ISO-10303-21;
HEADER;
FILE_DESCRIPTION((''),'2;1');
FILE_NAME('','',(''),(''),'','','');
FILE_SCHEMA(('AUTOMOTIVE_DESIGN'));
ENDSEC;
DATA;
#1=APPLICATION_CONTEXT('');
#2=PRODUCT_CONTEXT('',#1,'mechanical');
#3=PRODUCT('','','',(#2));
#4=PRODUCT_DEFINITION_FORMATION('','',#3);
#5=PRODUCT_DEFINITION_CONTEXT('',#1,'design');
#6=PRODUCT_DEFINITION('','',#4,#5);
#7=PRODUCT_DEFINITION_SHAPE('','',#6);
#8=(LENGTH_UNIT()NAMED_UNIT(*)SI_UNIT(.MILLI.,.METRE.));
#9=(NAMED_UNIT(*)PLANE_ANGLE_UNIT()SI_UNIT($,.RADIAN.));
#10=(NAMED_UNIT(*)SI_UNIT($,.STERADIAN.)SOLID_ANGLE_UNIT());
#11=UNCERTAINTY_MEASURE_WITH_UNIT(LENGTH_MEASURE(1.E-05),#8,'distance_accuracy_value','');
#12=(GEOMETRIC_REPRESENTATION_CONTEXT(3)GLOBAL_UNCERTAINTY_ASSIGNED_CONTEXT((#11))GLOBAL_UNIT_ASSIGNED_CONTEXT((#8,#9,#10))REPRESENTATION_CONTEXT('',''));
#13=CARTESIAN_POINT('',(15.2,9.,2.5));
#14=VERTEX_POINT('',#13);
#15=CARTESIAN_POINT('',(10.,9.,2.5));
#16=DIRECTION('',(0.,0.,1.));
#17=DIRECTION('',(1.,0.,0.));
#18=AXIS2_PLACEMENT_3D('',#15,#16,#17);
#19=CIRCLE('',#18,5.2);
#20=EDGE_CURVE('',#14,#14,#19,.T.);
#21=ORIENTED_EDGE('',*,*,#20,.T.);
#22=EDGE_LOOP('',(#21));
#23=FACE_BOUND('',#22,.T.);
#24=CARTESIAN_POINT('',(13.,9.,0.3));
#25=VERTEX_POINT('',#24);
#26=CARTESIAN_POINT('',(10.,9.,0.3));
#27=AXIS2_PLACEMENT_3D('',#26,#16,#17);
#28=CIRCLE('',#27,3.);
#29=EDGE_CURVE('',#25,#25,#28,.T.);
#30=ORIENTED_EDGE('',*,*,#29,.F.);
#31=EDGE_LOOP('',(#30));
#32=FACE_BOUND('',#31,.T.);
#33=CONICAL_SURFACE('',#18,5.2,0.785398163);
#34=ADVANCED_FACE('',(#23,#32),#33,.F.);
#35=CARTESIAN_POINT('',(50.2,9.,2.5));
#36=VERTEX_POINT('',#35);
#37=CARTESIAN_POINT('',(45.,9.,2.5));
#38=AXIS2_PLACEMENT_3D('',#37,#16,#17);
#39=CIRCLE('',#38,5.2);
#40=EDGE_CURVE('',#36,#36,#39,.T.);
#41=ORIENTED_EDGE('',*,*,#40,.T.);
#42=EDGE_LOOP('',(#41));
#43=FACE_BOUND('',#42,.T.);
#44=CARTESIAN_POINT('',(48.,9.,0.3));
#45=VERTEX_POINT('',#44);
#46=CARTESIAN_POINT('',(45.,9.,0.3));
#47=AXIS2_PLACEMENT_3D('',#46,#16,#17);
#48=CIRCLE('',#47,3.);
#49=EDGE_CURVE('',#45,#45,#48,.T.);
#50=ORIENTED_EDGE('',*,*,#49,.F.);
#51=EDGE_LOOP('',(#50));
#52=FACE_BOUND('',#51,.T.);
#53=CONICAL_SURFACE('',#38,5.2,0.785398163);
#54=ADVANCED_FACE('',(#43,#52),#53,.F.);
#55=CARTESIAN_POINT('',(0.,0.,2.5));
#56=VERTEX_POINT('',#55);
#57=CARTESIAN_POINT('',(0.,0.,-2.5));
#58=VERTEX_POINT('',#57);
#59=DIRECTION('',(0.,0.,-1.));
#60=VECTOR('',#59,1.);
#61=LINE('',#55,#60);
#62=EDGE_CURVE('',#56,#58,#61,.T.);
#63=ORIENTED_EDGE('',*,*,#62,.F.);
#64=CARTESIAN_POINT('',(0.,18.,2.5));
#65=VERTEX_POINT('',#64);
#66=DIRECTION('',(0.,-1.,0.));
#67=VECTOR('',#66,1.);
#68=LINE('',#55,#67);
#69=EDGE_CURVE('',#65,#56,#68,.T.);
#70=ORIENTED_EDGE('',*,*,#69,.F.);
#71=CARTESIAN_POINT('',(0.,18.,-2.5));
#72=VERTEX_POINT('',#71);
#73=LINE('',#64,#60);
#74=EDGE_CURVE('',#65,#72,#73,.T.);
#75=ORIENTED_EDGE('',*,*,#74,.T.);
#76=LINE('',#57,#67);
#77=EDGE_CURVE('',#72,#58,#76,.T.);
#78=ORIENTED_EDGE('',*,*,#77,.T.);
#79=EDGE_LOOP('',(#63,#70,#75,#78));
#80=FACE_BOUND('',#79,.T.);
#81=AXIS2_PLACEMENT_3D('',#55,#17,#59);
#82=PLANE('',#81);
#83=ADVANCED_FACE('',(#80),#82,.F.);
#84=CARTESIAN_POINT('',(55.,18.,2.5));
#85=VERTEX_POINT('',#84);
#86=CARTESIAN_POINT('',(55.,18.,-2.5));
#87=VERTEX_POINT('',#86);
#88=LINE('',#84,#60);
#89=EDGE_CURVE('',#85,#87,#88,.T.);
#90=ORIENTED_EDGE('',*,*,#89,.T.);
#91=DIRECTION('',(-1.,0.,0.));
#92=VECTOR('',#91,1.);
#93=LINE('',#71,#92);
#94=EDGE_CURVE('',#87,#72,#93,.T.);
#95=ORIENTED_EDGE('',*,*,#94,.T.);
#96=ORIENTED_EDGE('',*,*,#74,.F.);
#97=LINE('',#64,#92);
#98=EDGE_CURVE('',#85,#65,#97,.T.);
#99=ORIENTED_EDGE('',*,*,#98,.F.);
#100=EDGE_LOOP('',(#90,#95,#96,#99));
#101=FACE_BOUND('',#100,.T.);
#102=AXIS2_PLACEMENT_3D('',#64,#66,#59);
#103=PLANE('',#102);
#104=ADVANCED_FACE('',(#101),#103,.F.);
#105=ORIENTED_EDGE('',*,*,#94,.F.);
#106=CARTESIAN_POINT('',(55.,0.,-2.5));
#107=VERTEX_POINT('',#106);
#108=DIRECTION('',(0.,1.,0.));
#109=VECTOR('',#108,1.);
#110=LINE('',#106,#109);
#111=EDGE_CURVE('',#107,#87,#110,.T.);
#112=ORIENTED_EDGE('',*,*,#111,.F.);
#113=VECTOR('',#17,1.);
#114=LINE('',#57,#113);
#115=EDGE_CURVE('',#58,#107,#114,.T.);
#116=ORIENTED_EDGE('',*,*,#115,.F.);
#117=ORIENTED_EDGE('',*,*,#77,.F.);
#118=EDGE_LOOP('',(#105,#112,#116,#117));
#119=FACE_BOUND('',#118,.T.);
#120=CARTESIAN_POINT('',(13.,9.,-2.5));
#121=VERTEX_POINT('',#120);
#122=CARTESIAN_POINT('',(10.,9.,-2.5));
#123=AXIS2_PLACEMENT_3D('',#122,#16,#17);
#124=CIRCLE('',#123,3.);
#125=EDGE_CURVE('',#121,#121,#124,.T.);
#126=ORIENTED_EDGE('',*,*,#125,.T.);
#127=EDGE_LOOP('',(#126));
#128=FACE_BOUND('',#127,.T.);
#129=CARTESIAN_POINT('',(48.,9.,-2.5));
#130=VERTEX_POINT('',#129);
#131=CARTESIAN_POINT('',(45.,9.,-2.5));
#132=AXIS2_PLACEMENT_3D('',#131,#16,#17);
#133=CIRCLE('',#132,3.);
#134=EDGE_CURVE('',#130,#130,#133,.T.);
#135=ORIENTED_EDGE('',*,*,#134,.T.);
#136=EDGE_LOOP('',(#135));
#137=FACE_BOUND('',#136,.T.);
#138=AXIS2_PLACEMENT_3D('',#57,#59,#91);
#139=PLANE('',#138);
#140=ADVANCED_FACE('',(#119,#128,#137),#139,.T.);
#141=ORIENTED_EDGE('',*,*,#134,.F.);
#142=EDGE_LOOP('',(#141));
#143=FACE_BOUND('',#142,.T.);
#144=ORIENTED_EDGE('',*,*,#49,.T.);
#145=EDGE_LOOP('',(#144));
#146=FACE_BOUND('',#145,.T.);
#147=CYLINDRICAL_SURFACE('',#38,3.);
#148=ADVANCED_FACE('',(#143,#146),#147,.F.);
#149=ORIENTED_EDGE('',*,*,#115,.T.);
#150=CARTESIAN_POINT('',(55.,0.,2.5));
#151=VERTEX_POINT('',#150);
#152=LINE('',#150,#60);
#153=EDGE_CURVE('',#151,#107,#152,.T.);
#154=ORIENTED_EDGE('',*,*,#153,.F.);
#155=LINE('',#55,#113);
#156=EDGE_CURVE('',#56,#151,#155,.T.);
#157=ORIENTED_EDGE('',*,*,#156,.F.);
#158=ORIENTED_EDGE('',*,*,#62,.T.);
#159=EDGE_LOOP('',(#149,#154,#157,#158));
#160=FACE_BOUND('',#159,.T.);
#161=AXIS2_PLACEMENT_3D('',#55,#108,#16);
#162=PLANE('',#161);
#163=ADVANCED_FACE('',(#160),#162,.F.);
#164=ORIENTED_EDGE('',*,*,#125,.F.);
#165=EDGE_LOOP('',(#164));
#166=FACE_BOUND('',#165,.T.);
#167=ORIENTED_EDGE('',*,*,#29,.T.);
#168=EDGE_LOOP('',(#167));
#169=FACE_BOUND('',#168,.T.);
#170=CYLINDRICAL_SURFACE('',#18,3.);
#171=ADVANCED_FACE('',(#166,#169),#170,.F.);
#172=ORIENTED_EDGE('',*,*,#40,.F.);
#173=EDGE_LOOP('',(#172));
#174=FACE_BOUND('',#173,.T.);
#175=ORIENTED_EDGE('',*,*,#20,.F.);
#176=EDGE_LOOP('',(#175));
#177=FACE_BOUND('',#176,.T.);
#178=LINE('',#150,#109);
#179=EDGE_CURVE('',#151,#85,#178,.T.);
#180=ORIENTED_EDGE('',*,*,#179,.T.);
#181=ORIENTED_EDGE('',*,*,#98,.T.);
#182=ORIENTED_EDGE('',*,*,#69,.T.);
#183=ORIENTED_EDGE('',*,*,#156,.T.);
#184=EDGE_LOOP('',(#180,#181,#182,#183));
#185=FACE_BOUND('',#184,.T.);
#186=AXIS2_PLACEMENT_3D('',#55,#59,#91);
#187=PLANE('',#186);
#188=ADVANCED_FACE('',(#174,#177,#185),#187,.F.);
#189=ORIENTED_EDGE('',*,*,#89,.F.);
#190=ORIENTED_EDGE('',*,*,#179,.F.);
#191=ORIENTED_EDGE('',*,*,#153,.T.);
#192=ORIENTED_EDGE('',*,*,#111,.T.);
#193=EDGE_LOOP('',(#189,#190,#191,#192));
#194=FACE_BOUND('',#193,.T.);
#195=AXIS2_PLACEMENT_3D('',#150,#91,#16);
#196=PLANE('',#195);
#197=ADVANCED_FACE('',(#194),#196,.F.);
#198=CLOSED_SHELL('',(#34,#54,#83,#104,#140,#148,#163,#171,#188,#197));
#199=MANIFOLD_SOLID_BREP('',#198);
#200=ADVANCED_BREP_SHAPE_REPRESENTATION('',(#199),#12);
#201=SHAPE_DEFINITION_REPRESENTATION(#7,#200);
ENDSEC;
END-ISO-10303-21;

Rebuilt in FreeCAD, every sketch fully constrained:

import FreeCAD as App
import Part
import Sketcher
from FreeCAD import Vector
Q = App.Units.Quantity

doc = App.newDocument("Part")
body = doc.addObject("PartDesign::Body", "Body")

# Sketch on XY plane
sketch1 = body.newObject("Sketcher::SketchObject", "Sketch")
sketch1.AttachmentSupport = (doc.getObject("XY_Plane"), [""])
sketch1.MapMode = "FlatFace"
sketch1.addGeometry(Part.LineSegment(Vector(0, 18, 0), Vector(0, 0, 0)), False)
sketch1.addGeometry(Part.LineSegment(Vector(0, 0, 0), Vector(55, 0, 0)), False)
sketch1.addGeometry(Part.LineSegment(Vector(55, 0, 0), Vector(55, 18, 0)), False)
sketch1.addGeometry(Part.LineSegment(Vector(55, 18, 0), Vector(0, 18, 0)), False)
sketch1.addConstraint(Sketcher.Constraint("Coincident", 0, 2, 1, 1))
sketch1.addConstraint(Sketcher.Constraint("Coincident", 1, 2, 2, 1))
sketch1.addConstraint(Sketcher.Constraint("Coincident", 2, 2, 3, 1))
sketch1.addConstraint(Sketcher.Constraint("Coincident", 3, 2, 0, 1))
sketch1.addConstraint(Sketcher.Constraint("Vertical", 0))
sketch1.addConstraint(Sketcher.Constraint("Horizontal", 1))
sketch1.addConstraint(Sketcher.Constraint("Vertical", 2))
sketch1.addConstraint(Sketcher.Constraint("Horizontal", 3))
sketch1.addConstraint(Sketcher.Constraint("Coincident", 0, 2, -1, 1))
sketch1.addConstraint(Sketcher.Constraint("DistanceX", 1, 1, 1, 2, Q("55 mm")))
sketch1.addConstraint(Sketcher.Constraint("DistanceY", 0, 2, 0, 1, Q("18 mm")))
pad1 = body.newObject("PartDesign::Pad", "Pad")
pad1.Profile = sketch1
pad1.Length = 5
pad1.Midplane = True

# Sketch on YZ plane
sketch2 = body.newObject("Sketcher::SketchObject", "Sketch001")
sketch2.AttachmentSupport = (doc.getObject("YZ_Plane"), [""])
sketch2.MapMode = "FlatFace"
sketch2.AttachmentOffset = App.Placement(Vector(0, 0, 10), App.Rotation())
sketch2.addGeometry(Part.LineSegment(Vector(9, -2.5, 0), Vector(9, 2.5, 0)), False)
sketch2.addGeometry(Part.LineSegment(Vector(9, 2.5, 0), Vector(3.8, 2.5, 0)), False)
sketch2.addGeometry(Part.LineSegment(Vector(3.8, 2.5, 0), Vector(6, 0.3, 0)), False)
sketch2.addGeometry(Part.LineSegment(Vector(6, 0.3, 0), Vector(6, -2.5, 0)), False)
sketch2.addGeometry(Part.LineSegment(Vector(6, -2.5, 0), Vector(9, -2.5, 0)), False)
sketch2.addGeometry(Part.LineSegment(Vector(9, 2.5, 0), Vector(9, -2.5, 0)), True)  # axis
sketch2.addConstraint(Sketcher.Constraint("Coincident", 0, 2, 1, 1))
sketch2.addConstraint(Sketcher.Constraint("Coincident", 1, 2, 2, 1))
sketch2.addConstraint(Sketcher.Constraint("Coincident", 2, 2, 3, 1))
sketch2.addConstraint(Sketcher.Constraint("Coincident", 3, 2, 4, 1))
sketch2.addConstraint(Sketcher.Constraint("Coincident", 4, 2, 0, 1))
sketch2.addConstraint(Sketcher.Constraint("Vertical", 0))
sketch2.addConstraint(Sketcher.Constraint("Horizontal", 1))
sketch2.addConstraint(Sketcher.Constraint("Vertical", 3))
sketch2.addConstraint(Sketcher.Constraint("Horizontal", 4))
sketch2.addConstraint(Sketcher.Constraint("Vertical", 5))
sketch2.addConstraint(Sketcher.Constraint("Coincident", 5, 1, 0, 2))
sketch2.addConstraint(Sketcher.Constraint("Horizontal", 3, 2, 5, 2))
sketch2.addConstraint(Sketcher.Constraint("DistanceX", 4, 1, 4, 2, Q("3 mm")))
sketch2.addConstraint(Sketcher.Constraint("DistanceY", 0, 1, 0, 2, Q("5 mm")))
sketch2.addConstraint(Sketcher.Constraint("Angle", 2, Q("-45 deg")))
sketch2.addConstraint(Sketcher.Constraint("DistanceX", 1, 2, 1, 1, Q("5.2 mm")))
sketch2.addConstraint(Sketcher.Constraint("DistanceX", -1, 1, 0, 2, Q("9 mm")))
sketch2.addConstraint(Sketcher.Constraint("DistanceY", -1, 1, 0, 2, Q("2.5 mm")))
groove = body.newObject("PartDesign::Groove", "Groove")
groove.Profile = sketch2
groove.ReferenceAxis = (sketch2, ["Axis0"])
groove.Angle = 360
doc.recompute()

linearpattern = body.newObject("PartDesign::LinearPattern", "LinearPattern")
linearpattern.Originals = [groove]
linearpattern.Direction = (doc.getObject("X_Axis"), [""])
linearpattern.Mode = "offset"
linearpattern.Offset = 35
linearpattern.Occurrences = 2
body.Tip = linearpattern

doc.recompute()
